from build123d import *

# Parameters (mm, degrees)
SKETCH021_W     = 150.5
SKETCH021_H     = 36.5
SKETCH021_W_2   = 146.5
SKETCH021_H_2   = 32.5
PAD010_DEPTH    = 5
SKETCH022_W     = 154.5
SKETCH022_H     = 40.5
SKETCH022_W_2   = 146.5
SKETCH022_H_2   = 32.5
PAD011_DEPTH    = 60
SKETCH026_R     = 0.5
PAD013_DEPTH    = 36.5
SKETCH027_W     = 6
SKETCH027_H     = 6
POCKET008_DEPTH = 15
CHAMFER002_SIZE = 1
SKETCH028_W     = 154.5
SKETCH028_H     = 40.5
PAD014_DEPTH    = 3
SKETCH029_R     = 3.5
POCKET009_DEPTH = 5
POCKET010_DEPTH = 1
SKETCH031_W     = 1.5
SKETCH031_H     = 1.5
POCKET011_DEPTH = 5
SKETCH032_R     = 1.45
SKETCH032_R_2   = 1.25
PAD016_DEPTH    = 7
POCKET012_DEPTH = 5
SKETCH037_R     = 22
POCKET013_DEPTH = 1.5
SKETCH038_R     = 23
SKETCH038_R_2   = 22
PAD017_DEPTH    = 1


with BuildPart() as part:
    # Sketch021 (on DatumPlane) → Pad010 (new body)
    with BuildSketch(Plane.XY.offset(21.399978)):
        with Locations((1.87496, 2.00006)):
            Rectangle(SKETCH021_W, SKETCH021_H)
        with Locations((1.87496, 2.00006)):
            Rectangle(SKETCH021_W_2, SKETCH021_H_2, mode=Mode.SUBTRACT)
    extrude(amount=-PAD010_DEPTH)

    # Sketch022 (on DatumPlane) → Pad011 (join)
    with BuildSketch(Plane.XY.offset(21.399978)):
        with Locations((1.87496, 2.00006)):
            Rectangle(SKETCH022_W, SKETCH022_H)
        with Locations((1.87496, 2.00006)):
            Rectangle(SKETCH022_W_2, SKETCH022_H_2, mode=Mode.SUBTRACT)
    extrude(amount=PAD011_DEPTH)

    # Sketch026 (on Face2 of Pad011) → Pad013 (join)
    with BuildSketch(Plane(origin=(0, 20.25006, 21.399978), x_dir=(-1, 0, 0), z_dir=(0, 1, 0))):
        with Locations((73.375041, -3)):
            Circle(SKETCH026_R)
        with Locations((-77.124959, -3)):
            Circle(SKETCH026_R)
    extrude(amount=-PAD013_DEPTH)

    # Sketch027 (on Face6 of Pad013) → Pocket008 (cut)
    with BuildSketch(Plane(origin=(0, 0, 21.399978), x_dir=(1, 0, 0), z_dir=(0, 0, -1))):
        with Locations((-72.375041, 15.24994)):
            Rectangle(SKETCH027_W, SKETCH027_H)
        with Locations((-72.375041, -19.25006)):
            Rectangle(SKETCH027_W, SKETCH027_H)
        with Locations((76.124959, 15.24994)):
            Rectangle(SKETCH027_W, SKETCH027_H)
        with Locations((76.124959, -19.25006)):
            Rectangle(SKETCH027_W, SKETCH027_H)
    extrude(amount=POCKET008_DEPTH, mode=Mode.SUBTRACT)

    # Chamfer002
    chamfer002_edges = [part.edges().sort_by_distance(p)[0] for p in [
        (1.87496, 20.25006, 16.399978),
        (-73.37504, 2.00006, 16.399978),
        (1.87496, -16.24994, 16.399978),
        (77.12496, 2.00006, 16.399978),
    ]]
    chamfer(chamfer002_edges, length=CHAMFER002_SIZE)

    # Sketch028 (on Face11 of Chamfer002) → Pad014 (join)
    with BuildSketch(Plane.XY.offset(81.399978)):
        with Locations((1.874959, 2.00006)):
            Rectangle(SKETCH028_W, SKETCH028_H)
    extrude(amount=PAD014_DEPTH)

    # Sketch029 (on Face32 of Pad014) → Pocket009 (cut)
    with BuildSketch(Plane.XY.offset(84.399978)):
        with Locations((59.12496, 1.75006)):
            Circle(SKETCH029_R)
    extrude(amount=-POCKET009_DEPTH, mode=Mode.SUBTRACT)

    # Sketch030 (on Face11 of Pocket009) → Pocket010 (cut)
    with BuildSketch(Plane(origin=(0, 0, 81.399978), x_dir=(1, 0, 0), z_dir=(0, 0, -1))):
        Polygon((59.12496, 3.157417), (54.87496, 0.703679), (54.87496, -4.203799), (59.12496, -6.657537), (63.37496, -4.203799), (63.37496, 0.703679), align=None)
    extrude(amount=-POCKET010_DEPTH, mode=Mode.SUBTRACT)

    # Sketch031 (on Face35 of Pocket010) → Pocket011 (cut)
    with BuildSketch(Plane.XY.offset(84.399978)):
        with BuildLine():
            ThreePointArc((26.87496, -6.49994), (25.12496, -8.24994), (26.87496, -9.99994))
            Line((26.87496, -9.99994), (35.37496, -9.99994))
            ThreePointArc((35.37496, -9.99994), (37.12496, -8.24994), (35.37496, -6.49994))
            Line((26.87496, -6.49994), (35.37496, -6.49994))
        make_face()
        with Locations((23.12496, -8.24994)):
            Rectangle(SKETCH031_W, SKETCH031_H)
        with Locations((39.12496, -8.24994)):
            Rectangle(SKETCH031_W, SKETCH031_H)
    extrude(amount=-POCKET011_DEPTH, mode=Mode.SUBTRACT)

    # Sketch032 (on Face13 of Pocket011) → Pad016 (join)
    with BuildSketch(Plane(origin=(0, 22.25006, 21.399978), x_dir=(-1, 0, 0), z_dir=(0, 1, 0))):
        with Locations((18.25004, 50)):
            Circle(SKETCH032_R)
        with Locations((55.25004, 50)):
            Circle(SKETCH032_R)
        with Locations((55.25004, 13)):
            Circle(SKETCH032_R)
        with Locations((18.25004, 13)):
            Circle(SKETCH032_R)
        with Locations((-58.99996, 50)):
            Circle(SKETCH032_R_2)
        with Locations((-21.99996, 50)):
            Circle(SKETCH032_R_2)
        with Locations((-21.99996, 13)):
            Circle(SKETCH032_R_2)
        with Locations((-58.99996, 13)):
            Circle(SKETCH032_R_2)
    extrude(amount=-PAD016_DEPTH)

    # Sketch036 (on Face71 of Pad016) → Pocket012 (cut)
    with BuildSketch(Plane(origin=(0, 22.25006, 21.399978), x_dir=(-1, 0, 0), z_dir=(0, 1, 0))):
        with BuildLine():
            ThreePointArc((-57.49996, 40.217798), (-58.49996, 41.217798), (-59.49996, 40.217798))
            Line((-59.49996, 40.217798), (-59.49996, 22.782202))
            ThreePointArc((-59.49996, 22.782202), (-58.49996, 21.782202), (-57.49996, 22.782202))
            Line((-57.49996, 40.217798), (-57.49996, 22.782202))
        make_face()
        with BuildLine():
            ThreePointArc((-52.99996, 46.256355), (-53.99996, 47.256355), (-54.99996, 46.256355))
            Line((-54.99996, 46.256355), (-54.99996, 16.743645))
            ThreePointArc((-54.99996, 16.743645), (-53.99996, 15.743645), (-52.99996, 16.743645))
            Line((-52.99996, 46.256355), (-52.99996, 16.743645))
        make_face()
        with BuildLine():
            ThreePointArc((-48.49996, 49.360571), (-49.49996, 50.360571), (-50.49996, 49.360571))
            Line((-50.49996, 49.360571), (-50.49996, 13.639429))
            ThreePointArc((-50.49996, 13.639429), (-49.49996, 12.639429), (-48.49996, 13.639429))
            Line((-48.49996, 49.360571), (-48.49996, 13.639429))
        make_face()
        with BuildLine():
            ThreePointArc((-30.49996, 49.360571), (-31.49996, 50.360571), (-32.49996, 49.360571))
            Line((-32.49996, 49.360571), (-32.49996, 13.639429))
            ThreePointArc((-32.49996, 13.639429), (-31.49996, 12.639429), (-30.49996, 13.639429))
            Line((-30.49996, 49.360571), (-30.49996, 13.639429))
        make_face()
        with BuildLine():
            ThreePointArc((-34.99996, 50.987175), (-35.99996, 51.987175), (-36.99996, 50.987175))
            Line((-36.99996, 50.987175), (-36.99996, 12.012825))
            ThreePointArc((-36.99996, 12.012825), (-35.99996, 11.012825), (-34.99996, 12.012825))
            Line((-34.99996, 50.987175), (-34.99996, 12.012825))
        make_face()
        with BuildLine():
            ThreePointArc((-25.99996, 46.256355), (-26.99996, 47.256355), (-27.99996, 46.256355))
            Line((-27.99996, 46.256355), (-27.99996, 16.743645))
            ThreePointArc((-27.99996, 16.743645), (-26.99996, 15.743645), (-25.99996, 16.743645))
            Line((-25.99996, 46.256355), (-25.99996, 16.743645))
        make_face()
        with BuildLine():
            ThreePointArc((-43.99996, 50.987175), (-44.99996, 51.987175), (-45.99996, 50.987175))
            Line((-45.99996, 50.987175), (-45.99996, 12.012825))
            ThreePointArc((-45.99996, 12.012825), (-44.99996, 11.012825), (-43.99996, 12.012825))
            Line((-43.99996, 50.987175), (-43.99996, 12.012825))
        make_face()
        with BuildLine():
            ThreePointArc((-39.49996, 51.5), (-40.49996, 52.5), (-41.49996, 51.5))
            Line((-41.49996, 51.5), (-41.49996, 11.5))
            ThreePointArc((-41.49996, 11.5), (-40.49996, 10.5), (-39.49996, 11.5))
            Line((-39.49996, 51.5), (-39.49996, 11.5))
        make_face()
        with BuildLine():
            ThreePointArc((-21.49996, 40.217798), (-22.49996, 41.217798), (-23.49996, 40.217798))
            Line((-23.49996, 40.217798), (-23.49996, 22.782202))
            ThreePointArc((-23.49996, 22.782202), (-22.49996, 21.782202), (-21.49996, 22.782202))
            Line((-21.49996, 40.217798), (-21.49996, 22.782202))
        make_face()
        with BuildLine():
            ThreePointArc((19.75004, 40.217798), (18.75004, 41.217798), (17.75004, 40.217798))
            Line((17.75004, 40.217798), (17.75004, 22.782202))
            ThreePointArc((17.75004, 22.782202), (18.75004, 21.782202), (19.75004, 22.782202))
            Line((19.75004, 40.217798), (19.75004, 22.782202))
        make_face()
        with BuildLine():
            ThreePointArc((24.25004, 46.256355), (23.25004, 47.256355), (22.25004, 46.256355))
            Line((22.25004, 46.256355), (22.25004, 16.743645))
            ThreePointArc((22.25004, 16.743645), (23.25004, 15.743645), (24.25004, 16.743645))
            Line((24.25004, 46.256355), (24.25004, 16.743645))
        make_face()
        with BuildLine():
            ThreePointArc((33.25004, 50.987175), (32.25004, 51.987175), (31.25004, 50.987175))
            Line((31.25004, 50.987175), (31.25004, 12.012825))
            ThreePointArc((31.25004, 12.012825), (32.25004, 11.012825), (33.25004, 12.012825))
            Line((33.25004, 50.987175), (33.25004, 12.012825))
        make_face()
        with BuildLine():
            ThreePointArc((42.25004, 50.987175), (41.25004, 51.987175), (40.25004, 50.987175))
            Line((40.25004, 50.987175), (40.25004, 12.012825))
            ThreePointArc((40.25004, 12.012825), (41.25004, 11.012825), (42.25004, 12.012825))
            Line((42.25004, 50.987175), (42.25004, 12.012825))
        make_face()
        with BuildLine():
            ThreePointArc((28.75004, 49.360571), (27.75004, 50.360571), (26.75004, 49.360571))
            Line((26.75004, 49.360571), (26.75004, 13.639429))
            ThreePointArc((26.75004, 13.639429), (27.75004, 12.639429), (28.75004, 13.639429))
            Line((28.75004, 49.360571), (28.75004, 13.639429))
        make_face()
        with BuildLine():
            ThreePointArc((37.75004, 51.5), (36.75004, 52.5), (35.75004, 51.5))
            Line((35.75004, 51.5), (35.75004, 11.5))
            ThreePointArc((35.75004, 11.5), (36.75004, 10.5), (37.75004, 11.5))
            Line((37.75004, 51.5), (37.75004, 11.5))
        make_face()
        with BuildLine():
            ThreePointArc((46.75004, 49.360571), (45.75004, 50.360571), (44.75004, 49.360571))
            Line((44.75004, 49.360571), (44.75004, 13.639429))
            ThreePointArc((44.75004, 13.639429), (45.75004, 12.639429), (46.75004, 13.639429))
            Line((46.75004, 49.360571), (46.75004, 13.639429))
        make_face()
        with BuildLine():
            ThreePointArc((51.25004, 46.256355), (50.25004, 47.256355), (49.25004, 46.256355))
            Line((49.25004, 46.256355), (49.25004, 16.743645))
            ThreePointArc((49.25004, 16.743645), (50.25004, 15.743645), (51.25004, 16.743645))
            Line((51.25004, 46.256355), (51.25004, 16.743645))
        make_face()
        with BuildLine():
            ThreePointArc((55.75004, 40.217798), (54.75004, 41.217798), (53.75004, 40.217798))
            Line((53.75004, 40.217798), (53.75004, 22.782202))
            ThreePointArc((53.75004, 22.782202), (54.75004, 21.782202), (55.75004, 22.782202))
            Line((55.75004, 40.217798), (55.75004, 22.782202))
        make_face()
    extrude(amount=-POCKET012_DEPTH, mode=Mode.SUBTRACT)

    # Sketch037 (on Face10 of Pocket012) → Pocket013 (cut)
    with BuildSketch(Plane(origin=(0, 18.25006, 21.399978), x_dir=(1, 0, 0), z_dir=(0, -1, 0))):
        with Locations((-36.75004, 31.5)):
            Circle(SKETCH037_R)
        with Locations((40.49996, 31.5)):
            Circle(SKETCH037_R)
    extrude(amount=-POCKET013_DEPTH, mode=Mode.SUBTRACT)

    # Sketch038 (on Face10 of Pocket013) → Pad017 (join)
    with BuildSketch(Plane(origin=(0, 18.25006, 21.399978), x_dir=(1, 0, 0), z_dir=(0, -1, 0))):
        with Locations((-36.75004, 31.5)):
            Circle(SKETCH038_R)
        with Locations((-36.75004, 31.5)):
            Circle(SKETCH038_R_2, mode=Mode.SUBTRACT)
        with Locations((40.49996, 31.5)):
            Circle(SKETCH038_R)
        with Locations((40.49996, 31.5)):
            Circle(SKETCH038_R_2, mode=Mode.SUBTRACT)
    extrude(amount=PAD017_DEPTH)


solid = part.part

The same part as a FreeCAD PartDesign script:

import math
import FreeCAD as App
import Part
import Sketcher

V = App.Vector
Q = App.Units.Quantity


def edges_at(feature, points):
    """Names of the edges that pass closest to the given points."""
    edges = feature.Shape.Edges
    near = lambda p: min(range(len(edges)), key=lambda i: edges[i].distToShape(Part.Vertex(*p))[0])
    return sorted({f"Edge{near(p) + 1}" for p in points})


def add_polygon(sketch, points):
    """Adds a closed chain of lines whose ends are joined by coincident constraints."""
    first, n = sketch.GeometryCount, len(points)
    for a, b in zip(points, points[1:] + points[:1]):
        sketch.addGeometry(Part.LineSegment(App.Vector(*a, 0), App.Vector(*b, 0)), False)
    for i in range(n):
        sketch.addConstraint(Sketcher.Constraint("Coincident", first + i, 2, first + (i + 1) % n, 1))

doc = App.newDocument("Part")
body = doc.addObject("PartDesign::Body", "Body")

# Sketch on XY plane
sketch1 = doc.addObject("Sketcher::SketchObject", "Sketch")
body.addObject(sketch1)
sketch1.AttachmentSupport = (doc.XY_Plane, [""])
sketch1.MapMode = "FlatFace"
sketch1.AttachmentOffset = App.Placement(V(0, 0, 21.399978), App.Rotation())
add_polygon(sketch1, [(-73, 20), (-73, -16), (77, -16), (77, 20)])  # lines 0-3
add_polygon(sketch1, [(75, -14), (-71, -14), (-71, 18), (75, 18)])  # lines 4-7
sketch1.addConstraint([
    Sketcher.Constraint("Vertical", 0),
    Sketcher.Constraint("Horizontal", 1),
    Sketcher.Constraint("Vertical", 2),
    Sketcher.Constraint("Horizontal", 3),
    Sketcher.Constraint("Horizontal", 4),
    Sketcher.Constraint("Vertical", 5),
    Sketcher.Constraint("Horizontal", 6),
    Sketcher.Constraint("Vertical", 7),
    Sketcher.Constraint("DistanceX", 1, 1, 1, 2, Q("150.5 mm")),
    Sketcher.Constraint("DistanceX", 4, 2, 4, 1, Q("146.5 mm")),
    Sketcher.Constraint("DistanceY", 0, 2, 0, 1, Q("36.5 mm")),
    Sketcher.Constraint("DistanceY", 5, 1, 5, 2, Q("32.5 mm")),
    Sketcher.Constraint("DistanceX", 0, 2, 4, 2, Q("2 mm")),
    Sketcher.Constraint("DistanceY", 0, 2, 4, 2, Q("2 mm")),
    Sketcher.Constraint("DistanceX", 0, 2, -1, 1, Q("73.37504 mm")),
    Sketcher.Constraint("DistanceY", 0, 2, -1, 1, Q("16.24994 mm")),
])
pad1 = doc.addObject("PartDesign::Pad", "Pad")
body.addObject(pad1)
pad1.Profile = sketch1
pad1.Length = 5
pad1.Reversed = True

# Sketch on XY plane
sketch2 = doc.addObject("Sketcher::SketchObject", "Sketch001")
body.addObject(sketch2)
sketch2.AttachmentSupport = (doc.XY_Plane, [""])
sketch2.MapMode = "FlatFace"
sketch2.AttachmentOffset = App.Placement(V(0, 0, 21.399978), App.Rotation())
add_polygon(sketch2, [(-75, 22), (-75, -18), (79, -18), (79, 22)])  # lines 0-3
add_polygon(sketch2, [(75, -14), (-71, -14), (-71, 18), (75, 18)])  # lines 4-7
sketch2.addConstraint([
    Sketcher.Constraint("Vertical", 0),
    Sketcher.Constraint("Horizontal", 1),
    Sketcher.Constraint("Vertical", 2),
    Sketcher.Constraint("Horizontal", 3),
    Sketcher.Constraint("Horizontal", 4),
    Sketcher.Constraint("Vertical", 5),
    Sketcher.Constraint("Horizontal", 6),
    Sketcher.Constraint("Vertical", 7),
    Sketcher.Constraint("DistanceX", 1, 1, 1, 2, Q("154.5 mm")),
    Sketcher.Constraint("DistanceX", 4, 2, 4, 1, Q("146.5 mm")),
    Sketcher.Constraint("DistanceY", 0, 2, 0, 1, Q("40.5 mm")),
    Sketcher.Constraint("DistanceY", 5, 1, 5, 2, Q("32.5 mm")),
    Sketcher.Constraint("DistanceX", 0, 2, 4, 2, Q("4 mm")),
    Sketcher.Constraint("DistanceY", 0, 2, 4, 2, Q("4 mm")),
    Sketcher.Constraint("DistanceX", 0, 2, -1, 1, Q("75.37504 mm")),
    Sketcher.Constraint("DistanceY", 0, 2, -1, 1, Q("18.24994 mm")),
])
pad2 = doc.addObject("PartDesign::Pad", "Pad001")
body.addObject(pad2)
pad2.Profile = sketch2
pad2.Length = 60

# Sketch on XZ plane
sketch3 = doc.addObject("Sketcher::SketchObject", "Sketch002")
body.addObject(sketch3)
sketch3.AttachmentSupport = (doc.XZ_Plane, [""])
sketch3.MapMode = "FlatFace"
sketch3.AttachmentOffset = App.Placement(V(0, 0, -20.25006), App.Rotation())
sketch3.addGeometry([
    Part.Circle(V(-73.4, 18.4, 0), V(0, 0, 1), 0.5),
    Part.Circle(V(77.1, 18.4, 0), V(0, 0, 1), 0.5),
], False)
sketch3.addConstraint([
    Sketcher.Constraint("Equal", 0, 1),
    Sketcher.Constraint("Horizontal", 0, 3, 1, 3),
    Sketcher.Constraint("Diameter", 0, Q("1 mm")),
    Sketcher.Constraint("DistanceX", 0, 3, 1, 3, Q("150.5 mm")),
    Sketcher.Constraint("DistanceX", 0, 3, -1, 1, Q("73.375041 mm")),
    Sketcher.Constraint("DistanceY", -1, 1, 0, 3, Q("18.399978 mm")),
])
pad3 = doc.addObject("PartDesign::Pad", "Pad002")
body.addObject(pad3)
pad3.Profile = sketch3
pad3.Length = 36.5

# Sketch on XY plane
sketch4 = doc.addObject("Sketcher::SketchObject", "Sketch003")
body.addObject(sketch4)
sketch4.AttachmentSupport = (doc.XY_Plane, [""])
sketch4.MapMode = "FlatFace"
sketch4.AttachmentOffset = App.Placement(V(0, 0, 21.399978), App.Rotation())
add_polygon(sketch4, [(-75, -18), (-75, -12), (-69, -12), (-69, -18)])  # lines 0-3
add_polygon(sketch4, [(-75, 16), (-75, 22), (-69, 22), (-69, 16)])  # lines 4-7
add_polygon(sketch4, [(73, -18), (73, -12), (79, -12), (79, -18)])  # lines 8-11
add_polygon(sketch4, [(73, 16), (73, 22), (79, 22), (79, 16)])  # lines 12-15
sketch4.addConstraint([
    Sketcher.Constraint("Vertical", 0),
    Sketcher.Constraint("Horizontal", 1),
    Sketcher.Constraint("Vertical", 2),
    Sketcher.Constraint("Horizontal", 3),
    Sketcher.Constraint("Vertical", 4),
    Sketcher.Constraint("Horizontal", 5),
    Sketcher.Constraint("Vertical", 6),
    Sketcher.Constraint("Horizontal", 7),
    Sketcher.Constraint("Vertical", 8),
    Sketcher.Constraint("Horizontal", 9),
    Sketcher.Constraint("Vertical", 10),
    Sketcher.Constraint("Horizontal", 11),
    Sketcher.Constraint("Vertical", 12),
    Sketcher.Constraint("Horizontal", 13),
    Sketcher.Constraint("Vertical", 14),
    Sketcher.Constraint("Horizontal", 15),
    Sketcher.Constraint("Horizontal", 1, 2, 8, 2),
    Sketcher.Constraint("Horizontal", 3, 2, 10, 2),
    Sketcher.Constraint("Horizontal", 5, 2, 12, 2),
    Sketcher.Constraint("Horizontal", 7, 2, 14, 2),
    Sketcher.Constraint("Vertical", 3, 2, 4, 2),
    Sketcher.Constraint("Vertical", 2, 2, 5, 2),
    Sketcher.Constraint("Vertical", 11, 2, 12, 2),
    Sketcher.Constraint("Vertical", 10, 2, 13, 2),
    Sketcher.Constraint("Equal", 7, 9),
    Sketcher.Constraint("Equal", 15, 0),
    Sketcher.Constraint("Equal", 2, 4),
    Sketcher.Constraint("DistanceX", 1, 1, 1, 2, Q("6 mm")),
    Sketcher.Constraint("DistanceY", 0, 2, 4, 2, Q("34.5 mm")),
    Sketcher.Constraint("DistanceX", 1, 2, 8, 2, Q("142.5 mm")),
    Sketcher.Constraint("DistanceX", 0, 2, -1, 1, Q("75.375041 mm")),
    Sketcher.Constraint("DistanceY", 0, 2, -1, 1, Q("12.24994 mm")),
])
pocket1 = doc.addObject("PartDesign::Pocket", "Pocket")
body.addObject(pocket1)
pocket1.Profile = sketch4
pocket1.Length = 15
doc.recompute()

chamfer = doc.addObject("PartDesign::Chamfer", "Chamfer")
body.addObject(chamfer)
chamfer.Base = (pocket1, edges_at(pocket1, [
    (1.875, 20.25, 16.4),
    (-73.375, 2, 16.4),
    (1.875, -16.25, 16.4),
    (77.125, 2, 16.4),
]))
chamfer.Size = 1

# Sketch on XY plane
sketch5 = doc.addObject("Sketcher::SketchObject", "Sketch004")
body.addObject(sketch5)
sketch5.AttachmentSupport = (doc.XY_Plane, [""])
sketch5.MapMode = "FlatFace"
sketch5.AttachmentOffset = App.Placement(V(0, 0, 81.399978), App.Rotation())
add_polygon(sketch5, [(-75, 22), (-75, -18), (79, -18), (79, 22)])  # lines 0-3
sketch5.addConstraint([
    Sketcher.Constraint("Vertical", 0),
    Sketcher.Constraint("Horizontal", 1),
    Sketcher.Constraint("Vertical", 2),
    Sketcher.Constraint("Horizontal", 3),
    Sketcher.Constraint("DistanceX", 1, 1, 1, 2, Q("154.5 mm")),
    Sketcher.Constraint("DistanceY", 0, 2, 0, 1, Q("40.5 mm")),
    Sketcher.Constraint("DistanceX", 0, 2, -1, 1, Q("75.375041 mm")),
    Sketcher.Constraint("DistanceY", 0, 2, -1, 1, Q("18.24994 mm")),
])
pad4 = doc.addObject("PartDesign::Pad", "Pad003")
body.addObject(pad4)
pad4.Profile = sketch5
pad4.Length = 3

# Sketch on XY plane
sketch6 = doc.addObject("Sketcher::SketchObject", "Sketch005")
body.addObject(sketch6)
sketch6.AttachmentSupport = (doc.XY_Plane, [""])
sketch6.MapMode = "FlatFace"
sketch6.AttachmentOffset = App.Placement(V(0, 0, 84.399978), App.Rotation())
sketch6.addGeometry(Part.Circle(V(59.1, 1.8, 0), V(0, 0, 1), 3.5), False)
sketch6.addConstraint([
    Sketcher.Constraint("Diameter", 0, Q("7 mm")),
    Sketcher.Constraint("DistanceX", -1, 1, 0, 3, Q("59.12496 mm")),
    Sketcher.Constraint("DistanceY", -1, 1, 0, 3, Q("1.75006 mm")),
])
pocket2 = doc.addObject("PartDesign::Pocket", "Pocket001")
body.addObject(pocket2)
pocket2.Profile = sketch6
pocket2.Length = 5

# Sketch on XY plane
sketch7 = doc.addObject("Sketcher::SketchObject", "Sketch006")
body.addObject(sketch7)
sketch7.AttachmentSupport = (doc.XY_Plane, [""])
sketch7.MapMode = "FlatFace"
sketch7.AttachmentOffset = App.Placement(V(0, 0, 81.399978), App.Rotation())
add_polygon(sketch7, [(59.1, -3.2), (54.9, -0.7), (54.9, 4.2), (59.1, 6.7), (63.4, 4.2), (63.4, -0.7)])  # lines 0-5
sketch7.addConstraint([
    Sketcher.Constraint("Vertical", 1),
    Sketcher.Constraint("Vertical", 4),
    Sketcher.Constraint("Parallel", 0, 3),
    Sketcher.Constraint("Parallel", 2, 5),
    Sketcher.Constraint("Horizontal", 1, 2, 3, 2),
    Sketcher.Constraint("Horizontal", 0, 2, 4, 2),
    Sketcher.Constraint("Vertical", 2, 2, 5, 2),
    Sketcher.Constraint("Angle", 0, Q("150.000007 deg")),
    Sketcher.Constraint("DistanceX", 1, 2, 3, 2, Q("8.5 mm")),
    Sketcher.Constraint("DistanceY", 1, 1, 1, 2, Q("4.907478 mm")),
    Sketcher.Constraint("DistanceY", -1, 1, 1, 2, Q("4.203799 mm")),
    Sketcher.Constraint("DistanceX", -1, 1, 0, 2, Q("54.87496 mm")),
])
pocket3 = doc.addObject("PartDesign::Pocket", "Pocket002")
body.addObject(pocket3)
pocket3.Profile = sketch7
pocket3.Length = 1
pocket3.Reversed = True

# Sketch on XY plane
sketch8 = doc.addObject("Sketcher::SketchObject", "Sketch007")
body.addObject(sketch8)
sketch8.AttachmentSupport = (doc.XY_Plane, [""])
sketch8.MapMode = "FlatFace"
sketch8.AttachmentOffset = App.Placement(V(0, 0, 84.399978), App.Rotation())
sketch8.addGeometry(Part.ArcOfCircle(Part.Circle(V(26.9, -8.2, 0), V(0, 0, 1), 1.8), math.radians(90), math.radians(270)), False)  # 0
sketch8.addGeometry(Part.LineSegment(V(26.9, -10, 0), V(35.4, -10, 0)), False)  # 1
sketch8.addGeometry(Part.ArcOfCircle(Part.Circle(V(35.4, -8.2, 0), V(0, 0, 1), 1.8), math.radians(-90), math.radians(90)), False)  # 2
sketch8.addGeometry(Part.LineSegment(V(35.4, -6.5, 0), V(26.9, -6.5, 0)), False)  # 3
add_polygon(sketch8, [(22.4, -7.5), (22.4, -9), (23.9, -9), (23.9, -7.5)])  # lines 4-7
add_polygon(sketch8, [(38.4, -7.5), (38.4, -9), (39.9, -9), (39.9, -7.5)])  # lines 8-11
sketch8.addConstraint([
    Sketcher.Constraint("Tangent", 0, 2, 1, 1),
    Sketcher.Constraint("Tangent", 1, 2, 2, 1),
    Sketcher.Constraint("Tangent", 2, 2, 3, 1),
    Sketcher.Constraint("Tangent", 3, 2, 0, 1),
    Sketcher.Constraint("Horizontal", 1),
    Sketcher.Constraint("Horizontal", 3),
    Sketcher.Constraint("Vertical", 4),
    Sketcher.Constraint("Horizontal", 5),
    Sketcher.Constraint("Vertical", 6),
    Sketcher.Constraint("Horizontal", 7),
    Sketcher.Constraint("Vertical", 8),
    Sketcher.Constraint("Horizontal", 9),
    Sketcher.Constraint("Vertical", 10),
    Sketcher.Constraint("Horizontal", 11),
    Sketcher.Constraint("Horizontal", 5, 2, 8, 2),
    Sketcher.Constraint("Horizontal", 7, 2, 10, 2),
    Sketcher.Constraint("Equal", 7, 9),
    Sketcher.Constraint("Equal", 11, 4),
    Sketcher.Constraint("Radius", 0, Q("1.75 mm")),
    Sketcher.Constraint("DistanceX", 1, 1, 1, 2, Q("8.5 mm")),
    Sketcher.Constraint("DistanceX", 5, 1, 5, 2, Q("1.5 mm")),
    Sketcher.Constraint("DistanceY", 0, 2, 4, 2, Q("1 mm")),
    Sketcher.Constraint("DistanceX", 4, 2, 2, 3, Q("13 mm")),
    Sketcher.Constraint("DistanceX", 2, 3, 8, 2, Q("3 mm")),
    Sketcher.Constraint("DistanceX", -1, 1, 0, 3, Q("26.87496 mm")),
    Sketcher.Constraint("DistanceY", 0, 3, -1, 1, Q("8.24994 mm")),
])
pocket4 = doc.addObject("PartDesign::Pocket", "Pocket003")
body.addObject(pocket4)
pocket4.Profile = sketch8
pocket4.Length = 5

# Sketch on XZ plane
sketch9 = doc.addObject("Sketcher::SketchObject", "Sketch008")
body.addObject(sketch9)
sketch9.AttachmentSupport = (doc.XZ_Plane, [""])
sketch9.MapMode = "FlatFace"
sketch9.AttachmentOffset = App.Placement(V(0, 0, -22.25006), App.Rotation())
sketch9.addGeometry([
    Part.Circle(V(-18.3, 71.4, 0), V(0, 0, 1), 1.4),  # 0
    Part.Circle(V(-55.3, 71.4, 0), V(0, 0, 1), 1.4),  # 1
    Part.Circle(V(-55.3, 34.4, 0), V(0, 0, 1), 1.4),  # 2
    Part.Circle(V(-18.3, 34.4, 0), V(0, 0, 1), 1.4),  # 3
    Part.Circle(V(59, 71.4, 0), V(0, 0, 1), 1.2),  # 4
    Part.Circle(V(22, 71.4, 0), V(0, 0, 1), 1.2),  # 5
    Part.Circle(V(22, 34.4, 0), V(0, 0, 1), 1.2),  # 6
    Part.Circle(V(59, 34.4, 0), V(0, 0, 1), 1.2),  # 7
], False)
sketch9.addConstraint([
    Sketcher.Constraint("Equal", 0, 1),
    Sketcher.Constraint("Equal", 1, 2),
    Sketcher.Constraint("Equal", 2, 3),
    Sketcher.Constraint("Equal", 4, 5),
    Sketcher.Constraint("Equal", 5, 6),
    Sketcher.Constraint("Equal", 6, 7),
    Sketcher.Constraint("Horizontal", 0, 3, 1, 3),
    Sketcher.Constraint("Horizontal", 2, 3, 3, 3),
    Sketcher.Constraint("Horizontal", 1, 3, 4, 3),
    Sketcher.Constraint("Horizontal", 4, 3, 5, 3),
    Sketcher.Constraint("Horizontal", 3, 3, 6, 3),
    Sketcher.Constraint("Horizontal", 6, 3, 7, 3),
    Sketcher.Constraint("Vertical", 1, 3, 2, 3),
    Sketcher.Constraint("Vertical", 0, 3, 3, 3),
    Sketcher.Constraint("Vertical", 5, 3, 6, 3),
    Sketcher.Constraint("Vertical", 4, 3, 7, 3),
    Sketcher.Constraint("Diameter", 0, Q("2.9 mm")),
    Sketcher.Constraint("Diameter", 4, Q("2.5 mm")),
    Sketcher.Constraint("DistanceX", 1, 3, 0, 3, Q("37 mm")),
    Sketcher.Constraint("DistanceY", 2, 3, 1, 3, Q("37 mm")),
    Sketcher.Constraint("DistanceX", 5, 3, 4, 3, Q("37 mm")),
    Sketcher.Constraint("DistanceX", 0, 3, 4, 3, Q("77.25 mm")),
    Sketcher.Constraint("DistanceX", 0, 3, -1, 1, Q("18.25004 mm")),
    Sketcher.Constraint("DistanceY", -1, 1, 0, 3, Q("71.399978 mm")),
])
pad5 = doc.addObject("PartDesign::Pad", "Pad004")
body.addObject(pad5)
pad5.Profile = sketch9
pad5.Length = 7

# Sketch on XZ plane
sketch10 = doc.addObject("Sketcher::SketchObject", "Sketch009")
body.addObject(sketch10)
sketch10.AttachmentSupport = (doc.XZ_Plane, [""])
sketch10.MapMode = "FlatFace"
sketch10.AttachmentOffset = App.Placement(V(0, 0, -22.25006), App.Rotation())
sketch10.addGeometry([
    Part.ArcOfCircle(Part.Circle(V(58.5, 61.6, 0), V(0, 0, 1), 1), math.radians(0), math.radians(180)),  # 0
    Part.LineSegment(V(59.5, 61.6, 0), V(59.5, 44.2, 0)),  # 1
    Part.ArcOfCircle(Part.Circle(V(58.5, 44.2, 0), V(0, 0, 1), 1), math.radians(180), math.radians(360)),  # 2
    Part.LineSegment(V(57.5, 44.2, 0), V(57.5, 61.6, 0)),  # 3
    Part.ArcOfCircle(Part.Circle(V(54, 67.7, 0), V(0, 0, 1), 1), math.radians(0), math.radians(180)),  # 4
    Part.LineSegment(V(55, 67.7, 0), V(55, 38.1, 0)),  # 5
    Part.ArcOfCircle(Part.Circle(V(54, 38.1, 0), V(0, 0, 1), 1), math.radians(180), math.radians(360)),  # 6
    Part.LineSegment(V(53, 38.1, 0), V(53, 67.7, 0)),  # 7
    Part.ArcOfCircle(Part.Circle(V(49.5, 70.8, 0), V(0, 0, 1), 1), math.radians(0), math.radians(180)),  # 8
    Part.LineSegment(V(50.5, 70.8, 0), V(50.5, 35, 0)),  # 9
    Part.ArcOfCircle(Part.Circle(V(49.5, 35, 0), V(0, 0, 1), 1), math.radians(180), math.radians(360)),  # 10
    Part.LineSegment(V(48.5, 35, 0), V(48.5, 70.8, 0)),  # 11
    Part.ArcOfCircle(Part.Circle(V(31.5, 70.8, 0), V(0, 0, 1), 1), math.radians(0), math.radians(180)),  # 12
    Part.LineSegment(V(32.5, 70.8, 0), V(32.5, 35, 0)),  # 13
    Part.ArcOfCircle(Part.Circle(V(31.5, 35, 0), V(0, 0, 1), 1), math.radians(180), math.radians(360)),  # 14
    Part.LineSegment(V(30.5, 35, 0), V(30.5, 70.8, 0)),  # 15
    Part.ArcOfCircle(Part.Circle(V(36, 72.4, 0), V(0, 0, 1), 1), math.radians(0), math.radians(180)),  # 16
    Part.LineSegment(V(37, 72.4, 0), V(37, 33.4, 0)),  # 17
    Part.ArcOfCircle(Part.Circle(V(36, 33.4, 0), V(0, 0, 1), 1), math.radians(180), math.radians(360)),  # 18
    Part.LineSegment(V(35, 33.4, 0), V(35, 72.4, 0)),  # 19
    Part.ArcOfCircle(Part.Circle(V(27, 67.7, 0), V(0, 0, 1), 1), math.radians(0), math.radians(180)),  # 20
    Part.LineSegment(V(28, 67.7, 0), V(28, 38.1, 0)),  # 21
    Part.ArcOfCircle(Part.Circle(V(27, 38.1, 0), V(0, 0, 1), 1), math.radians(180), math.radians(360)),  # 22
    Part.LineSegment(V(26, 38.1, 0), V(26, 67.7, 0)),  # 23
    Part.ArcOfCircle(Part.Circle(V(45, 72.4, 0), V(0, 0, 1), 1), math.radians(0), math.radians(180)),  # 24
    Part.LineSegment(V(46, 72.4, 0), V(46, 33.4, 0)),  # 25
    Part.ArcOfCircle(Part.Circle(V(45, 33.4, 0), V(0, 0, 1), 1), math.radians(180), math.radians(360)),  # 26
    Part.LineSegment(V(44, 33.4, 0), V(44, 72.4, 0)),  # 27
    Part.ArcOfCircle(Part.Circle(V(40.5, 72.9, 0), V(0, 0, 1), 1), math.radians(0), math.radians(180)),  # 28
    Part.LineSegment(V(41.5, 72.9, 0), V(41.5, 32.9, 0)),  # 29
    Part.ArcOfCircle(Part.Circle(V(40.5, 32.9, 0), V(0, 0, 1), 1), math.radians(180), math.radians(360)),  # 30
    Part.LineSegment(V(39.5, 32.9, 0), V(39.5, 72.9, 0)),  # 31
    Part.ArcOfCircle(Part.Circle(V(22.5, 61.6, 0), V(0, 0, 1), 1), math.radians(0), math.radians(180)),  # 32
    Part.LineSegment(V(23.5, 61.6, 0), V(23.5, 44.2, 0)),  # 33
    Part.ArcOfCircle(Part.Circle(V(22.5, 44.2, 0), V(0, 0, 1), 1), math.radians(180), math.radians(360)),  # 34
    Part.LineSegment(V(21.5, 44.2, 0), V(21.5, 61.6, 0)),  # 35
    Part.ArcOfCircle(Part.Circle(V(-18.8, 61.6, 0), V(0, 0, 1), 1), math.radians(0), math.radians(180)),  # 36
    Part.LineSegment(V(-17.8, 61.6, 0), V(-17.8, 44.2, 0)),  # 37
    Part.ArcOfCircle(Part.Circle(V(-18.8, 44.2, 0), V(0, 0, 1), 1), math.radians(180), math.radians(360)),  # 38
    Part.LineSegment(V(-19.8, 44.2, 0), V(-19.8, 61.6, 0)),  # 39
    Part.ArcOfCircle(Part.Circle(V(-23.3, 67.7, 0), V(0, 0, 1), 1), math.radians(0), math.radians(180)),  # 40
    Part.LineSegment(V(-22.3, 67.7, 0), V(-22.3, 38.1, 0)),  # 41
    Part.ArcOfCircle(Part.Circle(V(-23.3, 38.1, 0), V(0, 0, 1), 1), math.radians(180), math.radians(360)),  # 42
    Part.LineSegment(V(-24.3, 38.1, 0), V(-24.3, 67.7, 0)),  # 43
    Part.ArcOfCircle(Part.Circle(V(-32.3, 72.4, 0), V(0, 0, 1), 1), math.radians(0), math.radians(180)),  # 44
    Part.LineSegment(V(-31.3, 72.4, 0), V(-31.3, 33.4, 0)),  # 45
    Part.ArcOfCircle(Part.Circle(V(-32.3, 33.4, 0), V(0, 0, 1), 1), math.radians(180), math.radians(360)),  # 46
    Part.LineSegment(V(-33.3, 33.4, 0), V(-33.3, 72.4, 0)),  # 47
    Part.ArcOfCircle(Part.Circle(V(-41.3, 72.4, 0), V(0, 0, 1), 1), math.radians(0), math.radians(180)),  # 48
    Part.LineSegment(V(-40.3, 72.4, 0), V(-40.3, 33.4, 0)),  # 49
    Part.ArcOfCircle(Part.Circle(V(-41.3, 33.4, 0), V(0, 0, 1), 1), math.radians(180), math.radians(360)),  # 50
    Part.LineSegment(V(-42.3, 33.4, 0), V(-42.3, 72.4, 0)),  # 51
    Part.ArcOfCircle(Part.Circle(V(-27.8, 70.8, 0), V(0, 0, 1), 1), math.radians(0), math.radians(180)),  # 52
    Part.LineSegment(V(-26.8, 70.8, 0), V(-26.8, 35, 0)),  # 53
    Part.ArcOfCircle(Part.Circle(V(-27.8, 35, 0), V(0, 0, 1), 1), math.radians(180), math.radians(360)),  # 54
    Part.LineSegment(V(-28.8, 35, 0), V(-28.8, 70.8, 0)),  # 55
    Part.ArcOfCircle(Part.Circle(V(-36.8, 72.9, 0), V(0, 0, 1), 1), math.radians(0), math.radians(180)),  # 56
    Part.LineSegment(V(-35.8, 72.9, 0), V(-35.8, 32.9, 0)),  # 57
    Part.ArcOfCircle(Part.Circle(V(-36.8, 32.9, 0), V(0, 0, 1), 1), math.radians(180), math.radians(360)),  # 58
    Part.LineSegment(V(-37.8, 32.9, 0), V(-37.8, 72.9, 0)),  # 59
    Part.ArcOfCircle(Part.Circle(V(-45.8, 70.8, 0), V(0, 0, 1), 1), math.radians(0), math.radians(180)),  # 60
    Part.LineSegment(V(-44.8, 70.8, 0), V(-44.8, 35, 0)),  # 61
    Part.ArcOfCircle(Part.Circle(V(-45.8, 35, 0), V(0, 0, 1), 1), math.radians(180), math.radians(360)),  # 62
    Part.LineSegment(V(-46.8, 35, 0), V(-46.8, 70.8, 0)),  # 63
    Part.ArcOfCircle(Part.Circle(V(-50.3, 67.7, 0), V(0, 0, 1), 1), math.radians(0), math.radians(180)),  # 64
    Part.LineSegment(V(-49.3, 67.7, 0), V(-49.3, 38.1, 0)),  # 65
    Part.ArcOfCircle(Part.Circle(V(-50.3, 38.1, 0), V(0, 0, 1), 1), math.radians(180), math.radians(360)),  # 66
    Part.LineSegment(V(-51.3, 38.1, 0), V(-51.3, 67.7, 0)),  # 67
    Part.ArcOfCircle(Part.Circle(V(-54.8, 61.6, 0), V(0, 0, 1), 1), math.radians(0), math.radians(180)),  # 68
    Part.LineSegment(V(-53.8, 61.6, 0), V(-53.8, 44.2, 0)),  # 69
    Part.ArcOfCircle(Part.Circle(V(-54.8, 44.2, 0), V(0, 0, 1), 1), math.radians(180), math.radians(360)),  # 70
    Part.LineSegment(V(-55.8, 44.2, 0), V(-55.8, 61.6, 0)),  # 71
], False)
sketch10.addConstraint([
    Sketcher.Constraint("Tangent", 0, 1, 1, 1),
    Sketcher.Constraint("Tangent", 1, 2, 2, 2),
    Sketcher.Constraint("Tangent", 2, 1, 3, 1),
    Sketcher.Constraint("Tangent", 3, 2, 0, 2),
    Sketcher.Constraint("Tangent", 4, 1, 5, 1),
    Sketcher.Constraint("Tangent", 5, 2, 6, 2),
    Sketcher.Constraint("Tangent", 6, 1, 7, 1),
    Sketcher.Constraint("Tangent", 7, 2, 4, 2),
    Sketcher.Constraint("Tangent", 8, 1, 9, 1),
    Sketcher.Constraint("Tangent", 9, 2, 10, 2),
    Sketcher.Constraint("Tangent", 10, 1, 11, 1),
    Sketcher.Constraint("Tangent", 11, 2, 8, 2),
    Sketcher.Constraint("Tangent", 12, 1, 13, 1),
    Sketcher.Constraint("Tangent", 13, 2, 14, 2),
    Sketcher.Constraint("Tangent", 14, 1, 15, 1),
    Sketcher.Constraint("Tangent", 15, 2, 12, 2),
    Sketcher.Constraint("Tangent", 16, 1, 17, 1),
    Sketcher.Constraint("Tangent", 17, 2, 18, 2),
    Sketcher.Constraint("Tangent", 18, 1, 19, 1),
    Sketcher.Constraint("Tangent", 19, 2, 16, 2),
    Sketcher.Constraint("Tangent", 20, 1, 21, 1),
    Sketcher.Constraint("Tangent", 21, 2, 22, 2),
    Sketcher.Constraint("Tangent", 22, 1, 23, 1),
    Sketcher.Constraint("Tangent", 23, 2, 20, 2),
    Sketcher.Constraint("Tangent", 24, 1, 25, 1),
    Sketcher.Constraint("Tangent", 25, 2, 26, 2),
    Sketcher.Constraint("Tangent", 26, 1, 27, 1),
    Sketcher.Constraint("Tangent", 27, 2, 24, 2),
    Sketcher.Constraint("Tangent", 28, 1, 29, 1),
    Sketcher.Constraint("Tangent", 29, 2, 30, 2),
    Sketcher.Constraint("Tangent", 30, 1, 31, 1),
    Sketcher.Constraint("Tangent", 31, 2, 28, 2),
    Sketcher.Constraint("Tangent", 32, 1, 33, 1),
    Sketcher.Constraint("Tangent", 33, 2, 34, 2),
    Sketcher.Constraint("Tangent", 34, 1, 35, 1),
    Sketcher.Constraint("Tangent", 35, 2, 32, 2),
    Sketcher.Constraint("Tangent", 36, 1, 37, 1),
    Sketcher.Constraint("Tangent", 37, 2, 38, 2),
    Sketcher.Constraint("Tangent", 38, 1, 39, 1),
    Sketcher.Constraint("Tangent", 39, 2, 36, 2),
    Sketcher.Constraint("Tangent", 40, 1, 41, 1),
    Sketcher.Constraint("Tangent", 41, 2, 42, 2),
    Sketcher.Constraint("Tangent", 42, 1, 43, 1),
    Sketcher.Constraint("Tangent", 43, 2, 40, 2),
    Sketcher.Constraint("Tangent", 44, 1, 45, 1),
    Sketcher.Constraint("Tangent", 45, 2, 46, 2),
    Sketcher.Constraint("Tangent", 46, 1, 47, 1),
    Sketcher.Constraint("Tangent", 47, 2, 44, 2),
    Sketcher.Constraint("Tangent", 48, 1, 49, 1),
    Sketcher.Constraint("Tangent", 49, 2, 50, 2),
    Sketcher.Constraint("Tangent", 50, 1, 51, 1),
    Sketcher.Constraint("Tangent", 51, 2, 48, 2),
    Sketcher.Constraint("Tangent", 52, 1, 53, 1),
    Sketcher.Constraint("Tangent", 53, 2, 54, 2),
    Sketcher.Constraint("Tangent", 54, 1, 55, 1),
    Sketcher.Constraint("Tangent", 55, 2, 52, 2),
    Sketcher.Constraint("Tangent", 56, 1, 57, 1),
    Sketcher.Constraint("Tangent", 57, 2, 58, 2),
    Sketcher.Constraint("Tangent", 58, 1, 59, 1),
    Sketcher.Constraint("Tangent", 59, 2, 56, 2),
    Sketcher.Constraint("Tangent", 60, 1, 61, 1),
    Sketcher.Constraint("Tangent", 61, 2, 62, 2),
    Sketcher.Constraint("Tangent", 62, 1, 63, 1),
    Sketcher.Constraint("Tangent", 63, 2, 60, 2),
    Sketcher.Constraint("Tangent", 64, 1, 65, 1),
    Sketcher.Constraint("Tangent", 65, 2, 66, 2),
    Sketcher.Constraint("Tangent", 66, 1, 67, 1),
    Sketcher.Constraint("Tangent", 67, 2, 64, 2),
    Sketcher.Constraint("Tangent", 68, 1, 69, 1),
    Sketcher.Constraint("Tangent", 69, 2, 70, 2),
    Sketcher.Constraint("Tangent", 70, 1, 71, 1),
    Sketcher.Constraint("Tangent", 71, 2, 68, 2),
    Sketcher.Constraint("Vertical", 1),
    Sketcher.Constraint("Vertical", 3),
    Sketcher.Constraint("Vertical", 5),
    Sketcher.Constraint("Vertical", 7),
    Sketcher.Constraint("Vertical", 9),
    Sketcher.Constraint("Vertical", 11),
    Sketcher.Constraint("Vertical", 13),
    Sketcher.Constraint("Vertical", 15),
    Sketcher.Constraint("Vertical", 17),
    Sketcher.Constraint("Vertical", 19),
    Sketcher.Constraint("Vertical", 21),
    Sketcher.Constraint("Vertical", 23),
    Sketcher.Constraint("Vertical", 25),
    Sketcher.Constraint("Vertical", 27),
    Sketcher.Constraint("Vertical", 29),
    Sketcher.Constraint("Vertical", 31),
    Sketcher.Constraint("Vertical", 33),
    Sketcher.Constraint("Vertical", 35),
    Sketcher.Constraint("Vertical", 37),
    Sketcher.Constraint("Vertical", 39),
    Sketcher.Constraint("Vertical", 41),
    Sketcher.Constraint("Vertical", 43),
    Sketcher.Constraint("Vertical", 45),
    Sketcher.Constraint("Vertical", 47),
    Sketcher.Constraint("Vertical", 49),
    Sketcher.Constraint("Vertical", 51),
    Sketcher.Constraint("Vertical", 53),
    Sketcher.Constraint("Vertical", 55),
    Sketcher.Constraint("Vertical", 57),
    Sketcher.Constraint("Vertical", 59),
    Sketcher.Constraint("Vertical", 61),
    Sketcher.Constraint("Vertical", 63),
    Sketcher.Constraint("Vertical", 65),
    Sketcher.Constraint("Vertical", 67),
    Sketcher.Constraint("Vertical", 69),
    Sketcher.Constraint("Vertical", 71),
    Sketcher.Constraint("Equal", 2, 4),
    Sketcher.Constraint("Equal", 6, 8),
    Sketcher.Constraint("Equal", 10, 12),
    Sketcher.Constraint("Equal", 14, 16),
    Sketcher.Constraint("Equal", 18, 20),
    Sketcher.Constraint("Equal", 22, 24),
    Sketcher.Constraint("Equal", 26, 28),
    Sketcher.Constraint("Equal", 30, 32),
    Sketcher.Constraint("Equal", 34, 36),
    Sketcher.Constraint("Equal", 38, 40),
    Sketcher.Constraint("Equal", 42, 44),
    Sketcher.Constraint("Equal", 46, 48),
    Sketcher.Constraint("Equal", 50, 52),
    Sketcher.Constraint("Equal", 54, 56),
    Sketcher.Constraint("Equal", 58, 60),
    Sketcher.Constraint("Equal", 62, 64),
    Sketcher.Constraint("Equal", 66, 68),
    Sketcher.Constraint("Horizontal", 8, 3, 12, 3),
    Sketcher.Constraint("Horizontal", 10, 3, 14, 3),
    Sketcher.Constraint("Horizontal", 4, 3, 20, 3),
    Sketcher.Constraint("Horizontal", 6, 3, 22, 3),
    Sketcher.Constraint("Horizontal", 16, 3, 24, 3),
    Sketcher.Constraint("Horizontal", 18, 3, 26, 3),
    Sketcher.Constraint("Horizontal", 0, 3, 32, 3),
    Sketcher.Constraint("Horizontal", 2, 3, 34, 3),
    Sketcher.Constraint("Horizontal", 32, 3, 36, 3),
    Sketcher.Constraint("Horizontal", 34, 3, 38, 3),
    Sketcher.Constraint("Horizontal", 20, 3, 40, 3),
    Sketcher.Constraint("Horizontal", 22, 3, 42, 3),
    Sketcher.Constraint("Horizontal", 24, 3, 44, 3),
    Sketcher.Constraint("Horizontal", 26, 3, 46, 3),
    Sketcher.Constraint("Horizontal", 44, 3, 48, 3),
    Sketcher.Constraint("Horizontal", 46, 3, 50, 3),
    Sketcher.Constraint("Horizontal", 12, 3, 52, 3),
    Sketcher.Constraint("Horizontal", 14, 3, 54, 3),
    Sketcher.Constraint("Horizontal", 28, 3, 56, 3),
    Sketcher.Constraint("Horizontal", 30, 3, 58, 3),
    Sketcher.Constraint("Horizontal", 52, 3, 60, 3),
    Sketcher.Constraint("Horizontal", 54, 3, 62, 3),
    Sketcher.Constraint("Horizontal", 40, 3, 64, 3),
    Sketcher.Constraint("Horizontal", 42, 3, 66, 3),
    Sketcher.Constraint("Horizontal", 36, 3, 68, 3),
    Sketcher.Constraint("Horizontal", 38, 3, 70, 3),
    Sketcher.Constraint("Radius", 0, Q("1 mm")),
    Sketcher.Constraint("DistanceY", 29, 2, 29, 1, Q("40 mm")),
    Sketcher.Constraint("DistanceY", 5, 2, 5, 1, Q("29.51271 mm")),
    Sketcher.Constraint("DistanceY", 17, 2, 17, 1, Q("38.97435 mm")),
    Sketcher.Constraint("DistanceY", 1, 2, 1, 1, Q("17.435596 mm")),
    Sketcher.Constraint("DistanceY", 9, 2, 9, 1, Q("35.721142 mm")),
    Sketcher.Constraint("DistanceX", -1, 1, 0, 3, Q("58.49996 mm")),
    Sketcher.Constraint("DistanceY", -1, 1, 2, 3, Q("44.18218 mm")),
    Sketcher.Constraint("DistanceX", -1, 1, 4, 3, Q("53.99996 mm")),
    Sketcher.Constraint("DistanceX", -1, 1, 8, 3, Q("49.49996 mm")),
    Sketcher.Constraint("DistanceY", -1, 1, 8, 3, Q("70.760549 mm")),
    Sketcher.Constraint("DistanceX", -1, 1, 12, 3, Q("31.49996 mm")),
    Sketcher.Constraint("DistanceX", -1, 1, 16, 3, Q("35.99996 mm")),
    Sketcher.Constraint("DistanceX", -1, 1, 20, 3, Q("26.99996 mm")),
    Sketcher.Constraint("DistanceX", -1, 1, 24, 3, Q("44.99996 mm")),
    Sketcher.Constraint("DistanceX", -1, 1, 28, 3, Q("40.49996 mm")),
    Sketcher.Constraint("DistanceY", -1, 1, 28, 3, Q("72.899978 mm")),
    Sketcher.Constraint("DistanceX", -1, 1, 32, 3, Q("22.49996 mm")),
    Sketcher.Constraint("DistanceX", 36, 3, -1, 1, Q("18.75004 mm")),
    Sketcher.Constraint("DistanceX", 40, 3, -1, 1, Q("23.25004 mm")),
    Sketcher.Constraint("DistanceX", 44, 3, -1, 1, Q("32.25004 mm")),
    Sketcher.Constraint("DistanceX", 48, 3, -1, 1, Q("41.25004 mm")),
    Sketcher.Constraint("DistanceX", 52, 3, -1, 1, Q("27.75004 mm")),
    Sketcher.Constraint("DistanceX", 56, 3, -1, 1, Q("36.75004 mm")),
    Sketcher.Constraint("DistanceX", 60, 3, -1, 1, Q("45.75004 mm")),
    Sketcher.Constraint("DistanceX", 64, 3, -1, 1, Q("50.25004 mm")),
    Sketcher.Constraint("DistanceX", 68, 3, -1, 1, Q("54.75004 mm")),
    Sketcher.Constraint("DistanceY", -1, 1, 4, 3, Q("67.656333 mm")),
    Sketcher.Constraint("DistanceY", -1, 1, 16, 3, Q("72.387153 mm")),
])
pocket5 = doc.addObject("PartDesign::Pocket", "Pocket004")
body.addObject(pocket5)
pocket5.Profile = sketch10
pocket5.Length = 5
pocket5.Reversed = True

# Sketch on XZ plane
sketch11 = doc.addObject("Sketcher::SketchObject", "Sketch010")
body.addObject(sketch11)
sketch11.AttachmentSupport = (doc.XZ_Plane, [""])
sketch11.MapMode = "FlatFace"
sketch11.AttachmentOffset = App.Placement(V(0, 0, -18.25006), App.Rotation())
sketch11.addGeometry([
    Part.Circle(V(-37, 53, 0), V(0, 0, 1), 22),
    Part.Circle(V(40, 53, 0), V(0, 0, 1), 22),
], False)
sketch11.addConstraint([
    Sketcher.Constraint("Equal", 0, 1),
    Sketcher.Constraint("Horizontal", 0, 3, 1, 3),
    Sketcher.Constraint("Diameter", 0, Q("44 mm")),
    Sketcher.Constraint("DistanceX", 0, 3, 1, 3, Q("77.25 mm")),
    Sketcher.Constraint("DistanceX", 0, 3, -1, 1, Q("36.75004 mm")),
    Sketcher.Constraint("DistanceY", -1, 1, 0, 3, Q("52.899978 mm")),
])
pocket6 = doc.addObject("PartDesign::Pocket", "Pocket005")
body.addObject(pocket6)
pocket6.Profile = sketch11
pocket6.Length = 1.5

# Sketch on XZ plane
sketch12 = doc.addObject("Sketcher::SketchObject", "Sketch011")
body.addObject(sketch12)
sketch12.AttachmentSupport = (doc.XZ_Plane, [""])
sketch12.MapMode = "FlatFace"
sketch12.AttachmentOffset = App.Placement(V(0, 0, -18.25006), App.Rotation())
sketch12.addGeometry([
    Part.Circle(V(-37, 53, 0), V(0, 0, 1), 23),
    Part.Circle(V(-37, 53, 0), V(0, 0, 1), 22),
    Part.Circle(V(40, 53, 0), V(0, 0, 1), 23),
    Part.Circle(V(40, 53, 0), V(0, 0, 1), 22),
], False)
sketch12.addConstraint([
    Sketcher.Constraint("Coincident", 1, 3, 0, 3),
    Sketcher.Constraint("Coincident", 3, 3, 2, 3),
    Sketcher.Constraint("Equal", 0, 2),
    Sketcher.Constraint("Equal", 1, 3),
    Sketcher.Constraint("Horizontal", 1, 3, 2, 3),
    Sketcher.Constraint("Diameter", 0, Q("46 mm")),
    Sketcher.Constraint("Diameter", 1, Q("44 mm")),
    Sketcher.Constraint("DistanceX", 0, 3, 2, 3, Q("77.25 mm")),
    Sketcher.Constraint("DistanceX", 0, 3, -1, 1, Q("36.75004 mm")),
    Sketcher.Constraint("DistanceY", -1, 1, 0, 3, Q("52.899978 mm")),
])
pad6 = doc.addObject("PartDesign::Pad", "Pad005")
body.addObject(pad6)
pad6.Profile = sketch12
pad6.Length = 1

doc.recompute()
